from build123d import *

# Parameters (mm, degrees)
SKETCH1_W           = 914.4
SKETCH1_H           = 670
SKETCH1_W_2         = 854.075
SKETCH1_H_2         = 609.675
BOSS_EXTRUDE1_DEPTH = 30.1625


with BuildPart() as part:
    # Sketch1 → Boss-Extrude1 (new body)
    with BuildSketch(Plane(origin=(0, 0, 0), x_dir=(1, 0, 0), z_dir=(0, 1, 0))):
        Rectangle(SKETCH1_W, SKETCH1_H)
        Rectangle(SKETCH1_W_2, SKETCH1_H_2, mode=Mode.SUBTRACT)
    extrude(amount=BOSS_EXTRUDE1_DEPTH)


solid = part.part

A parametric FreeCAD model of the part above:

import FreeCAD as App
import Part
import Sketcher

V = App.Vector
Q = App.Units.Quantity


def add_polygon(sketch, points):
    """Adds a closed chain of lines whose ends are joined by coincident constraints."""
    first, n = sketch.GeometryCount, len(points)
    for a, b in zip(points, points[1:] + points[:1]):
        sketch.addGeometry(Part.LineSegment(App.Vector(*a, 0), App.Vector(*b, 0)), False)
    for i in range(n):
        sketch.addConstraint(Sketcher.Constraint("Coincident", first + i, 2, first + (i + 1) % n, 1))

doc = App.newDocument("Part")
body = doc.addObject("PartDesign::Body", "Body")

# Sketch on XZ plane
sketch1 = body.newObject("Sketcher::SketchObject", "Sketch")
sketch1.AttachmentSupport = (doc.getObject("XZ_Plane"), [""])
sketch1.MapMode = "FlatFace"
add_polygon(sketch1, [(-457, -335), (-457, 335), (457, 335), (457, -335)])  # lines 0-3
add_polygon(sketch1, [(427, 305), (-427, 305), (-427, -305), (427, -305)])  # lines 4-7
sketch1.addConstraint(Sketcher.Constraint("Vertical", 0))
sketch1.addConstraint(Sketcher.Constraint("Horizontal", 1))
sketch1.addConstraint(Sketcher.Constraint("Vertical", 2))
sketch1.addConstraint(Sketcher.Constraint("Horizontal", 3))
sketch1.addConstraint(Sketcher.Constraint("Horizontal", 4))
sketch1.addConstraint(Sketcher.Constraint("Vertical", 5))
sketch1.addConstraint(Sketcher.Constraint("Horizontal", 6))
sketch1.addConstraint(Sketcher.Constraint("Vertical", 7))
sketch1.addConstraint(Sketcher.Constraint("Symmetric", 0, 2, 2, 2, -1, 1))
sketch1.addConstraint(Sketcher.Constraint("Symmetric", 4, 2, 6, 2, -1, 1))
sketch1.addConstraint(Sketcher.Constraint("DistanceX", 1, 1, 1, 2, Q("36 in")))
sketch1.addConstraint(Sketcher.Constraint("DistanceX", 4, 2, 4, 1, Q("33.625 in")))
sketch1.addConstraint(Sketcher.Constraint("DistanceY", 4, 2, 0, 2, Q("1.1875 in")))
sketch1.addConstraint(Sketcher.Constraint("DistanceY", 0, 1, 0, 2, Q("670 mm")))
pad1 = body.newObject("PartDesign::Pad", "Pad")
pad1.Profile = sketch1
pad1.Length = Q("1.1875 in")
pad1.Reversed = True

doc.recompute()
